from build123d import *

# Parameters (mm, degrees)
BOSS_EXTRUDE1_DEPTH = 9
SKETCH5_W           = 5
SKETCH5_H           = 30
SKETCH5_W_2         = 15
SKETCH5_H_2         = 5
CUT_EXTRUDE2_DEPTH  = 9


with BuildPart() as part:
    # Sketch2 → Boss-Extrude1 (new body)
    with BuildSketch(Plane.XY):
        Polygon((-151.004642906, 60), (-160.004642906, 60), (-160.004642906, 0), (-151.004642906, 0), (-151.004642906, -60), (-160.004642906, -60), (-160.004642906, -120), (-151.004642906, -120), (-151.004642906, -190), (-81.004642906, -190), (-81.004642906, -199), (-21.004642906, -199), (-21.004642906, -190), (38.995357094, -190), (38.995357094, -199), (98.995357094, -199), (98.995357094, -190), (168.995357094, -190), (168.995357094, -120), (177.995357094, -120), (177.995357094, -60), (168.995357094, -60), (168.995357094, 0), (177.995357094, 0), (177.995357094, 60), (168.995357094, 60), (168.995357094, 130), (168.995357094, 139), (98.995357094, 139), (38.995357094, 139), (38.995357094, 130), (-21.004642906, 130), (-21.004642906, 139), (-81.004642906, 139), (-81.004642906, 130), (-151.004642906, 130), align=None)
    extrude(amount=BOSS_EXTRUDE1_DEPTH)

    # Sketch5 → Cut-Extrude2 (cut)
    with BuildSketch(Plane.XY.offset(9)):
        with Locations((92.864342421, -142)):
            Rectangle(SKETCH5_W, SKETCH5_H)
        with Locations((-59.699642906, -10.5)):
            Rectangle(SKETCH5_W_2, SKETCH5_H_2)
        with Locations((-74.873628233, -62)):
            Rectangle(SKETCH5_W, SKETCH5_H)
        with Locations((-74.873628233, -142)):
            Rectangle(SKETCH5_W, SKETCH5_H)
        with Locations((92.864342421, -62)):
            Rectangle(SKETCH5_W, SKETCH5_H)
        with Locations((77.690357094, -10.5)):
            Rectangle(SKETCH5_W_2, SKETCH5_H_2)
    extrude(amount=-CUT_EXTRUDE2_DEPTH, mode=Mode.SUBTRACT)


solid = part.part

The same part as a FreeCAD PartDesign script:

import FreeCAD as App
import Part
import Sketcher

V = App.Vector

doc = App.newDocument("Part")
body = doc.addObject("PartDesign::Body", "Body")

# Sketch on XY plane
sketch1 = doc.addObject("Sketcher::SketchObject", "Sketch")
body.addObject(sketch1)
sketch1.AttachmentSupport = (doc.XY_Plane, [""])
sketch1.MapMode = "FlatFace"
sketch1.addGeometry([
    Part.LineSegment(V(-151, 60, 0), V(-160, 60, 0)),  # 0
    Part.LineSegment(V(-160, 60, 0), V(-160, 0, 0)),  # 1
    Part.LineSegment(V(-160, 0, 0), V(-151, 0, 0)),  # 2
    Part.LineSegment(V(-151, 0, 0), V(-151, -60, 0)),  # 3
    Part.LineSegment(V(-151, -60, 0), V(-160, -60, 0)),  # 4
    Part.LineSegment(V(-160, -60, 0), V(-160, -120, 0)),  # 5
    Part.LineSegment(V(-160, -120, 0), V(-151, -120, 0)),  # 6
    Part.LineSegment(V(-151, -120, 0), V(-151, -190, 0)),  # 7
    Part.LineSegment(V(-151, -190, 0), V(-81, -190, 0)),  # 8
    Part.LineSegment(V(-81, -190, 0), V(-81, -199, 0)),  # 9
    Part.LineSegment(V(-81, -199, 0), V(-21, -199, 0)),  # 10
    Part.LineSegment(V(-21, -199, 0), V(-21, -190, 0)),  # 11
    Part.LineSegment(V(-21, -190, 0), V(39, -190, 0)),  # 12
    Part.LineSegment(V(39, -190, 0), V(39, -199, 0)),  # 13
    Part.LineSegment(V(39, -199, 0), V(99, -199, 0)),  # 14
    Part.LineSegment(V(99, -199, 0), V(99, -190, 0)),  # 15
    Part.LineSegment(V(99, -190, 0), V(169, -190, 0)),  # 16
    Part.LineSegment(V(169, -190, 0), V(169, -120, 0)),  # 17
    Part.LineSegment(V(169, -120, 0), V(178, -120, 0)),  # 18
    Part.LineSegment(V(178, -120, 0), V(178, -60, 0)),  # 19
    Part.LineSegment(V(178, -60, 0), V(169, -60, 0)),  # 20
    Part.LineSegment(V(169, -60, 0), V(169, 0, 0)),  # 21
    Part.LineSegment(V(169, 0, 0), V(178, 0, 0)),  # 22
    Part.LineSegment(V(178, 0, 0), V(178, 60, 0)),  # 23
    Part.LineSegment(V(178, 60, 0), V(169, 60, 0)),  # 24
    Part.LineSegment(V(169, 60, 0), V(169, 139, 0)),  # 25
    Part.LineSegment(V(169, 139, 0), V(39, 139, 0)),  # 26
    Part.LineSegment(V(39, 139, 0), V(39, 130, 0)),  # 27
    Part.LineSegment(V(39, 130, 0), V(-21, 130, 0)),  # 28
    Part.LineSegment(V(-21, 130, 0), V(-21, 139, 0)),  # 29
    Part.LineSegment(V(-21, 139, 0), V(-81, 139, 0)),  # 30
    Part.LineSegment(V(-81, 139, 0), V(-81, 130, 0)),  # 31
    Part.LineSegment(V(-81, 130, 0), V(-151, 130, 0)),  # 32
    Part.LineSegment(V(-151, 130, 0), V(-151, 60, 0)),  # 33
], False)
sketch1.addConstraint([
    Sketcher.Constraint("Coincident", 0, 2, 1, 1),
    Sketcher.Constraint("Coincident", 1, 2, 2, 1),
    Sketcher.Constraint("Coincident", 2, 2, 3, 1),
    Sketcher.Constraint("Coincident", 3, 2, 4, 1),
    Sketcher.Constraint("Coincident", 4, 2, 5, 1),
    Sketcher.Constraint("Coincident", 5, 2, 6, 1),
    Sketcher.Constraint("Coincident", 6, 2, 7, 1),
    Sketcher.Constraint("Coincident", 7, 2, 8, 1),
    Sketcher.Constraint("Coincident", 8, 2, 9, 1),
    Sketcher.Constraint("Coincident", 9, 2, 10, 1),
    Sketcher.Constraint("Coincident", 10, 2, 11, 1),
    Sketcher.Constraint("Coincident", 11, 2, 12, 1),
    Sketcher.Constraint("Coincident", 12, 2, 13, 1),
    Sketcher.Constraint("Coincident", 13, 2, 14, 1),
    Sketcher.Constraint("Coincident", 14, 2, 15, 1),
    Sketcher.Constraint("Coincident", 15, 2, 16, 1),
    Sketcher.Constraint("Coincident", 16, 2, 17, 1),
    Sketcher.Constraint("Coincident", 17, 2, 18, 1),
    Sketcher.Constraint("Coincident", 18, 2, 19, 1),
    Sketcher.Constraint("Coincident", 19, 2, 20, 1),
    Sketcher.Constraint("Coincident", 20, 2, 21, 1),
    Sketcher.Constraint("Coincident", 21, 2, 22, 1),
    Sketcher.Constraint("Coincident", 22, 2, 23, 1),
    Sketcher.Constraint("Coincident", 23, 2, 24, 1),
    Sketcher.Constraint("Coincident", 24, 2, 25, 1),
    Sketcher.Constraint("Coincident", 25, 2, 26, 1),
    Sketcher.Constraint("Coincident", 26, 2, 27, 1),
    Sketcher.Constraint("Coincident", 27, 2, 28, 1),
    Sketcher.Constraint("Coincident", 28, 2, 29, 1),
    Sketcher.Constraint("Coincident", 29, 2, 30, 1),
    Sketcher.Constraint("Coincident", 30, 2, 31, 1),
    Sketcher.Constraint("Coincident", 31, 2, 32, 1),
    Sketcher.Constraint("Coincident", 32, 2, 33, 1),
    Sketcher.Constraint("Coincident", 33, 2, 0, 1),
    Sketcher.Constraint("Horizontal", 0),
    Sketcher.Constraint("Vertical", 1),
    Sketcher.Constraint("Horizontal", 2),
    Sketcher.Constraint("Vertical", 3),
    Sketcher.Constraint("Horizontal", 4),
    Sketcher.Constraint("Vertical", 5),
    Sketcher.Constraint("Horizontal", 6),
    Sketcher.Constraint("Vertical", 7),
    Sketcher.Constraint("Horizontal", 8),
    Sketcher.Constraint("Vertical", 9),
    Sketcher.Constraint("Horizontal", 10),
    Sketcher.Constraint("Vertical", 11),
    Sketcher.Constraint("Horizontal", 12),
    Sketcher.Constraint("Vertical", 13),
    Sketcher.Constraint("Horizontal", 14),
    Sketcher.Constraint("Vertical", 15),
    Sketcher.Constraint("Horizontal", 16),
    Sketcher.Constraint("Vertical", 17),
    Sketcher.Constraint("Horizontal", 18),
    Sketcher.Constraint("Vertical", 19),
    Sketcher.Constraint("Horizontal", 20),
    Sketcher.Constraint("Vertical", 21),
    Sketcher.Constraint("Horizontal", 22),
    Sketcher.Constraint("Vertical", 23),
    Sketcher.Constraint("Horizontal", 24),
    Sketcher.Constraint("Vertical", 25),
    Sketcher.Constraint("Horizontal", 26),
    Sketcher.Constraint("Vertical", 27),
    Sketcher.Constraint("Horizontal", 28),
    Sketcher.Constraint("Vertical", 29),
    Sketcher.Constraint("Horizontal", 30),
    Sketcher.Constraint("Vertical", 31),
    Sketcher.Constraint("Horizontal", 32),
    Sketcher.Constraint("Vertical", 33),
    Sketcher.Constraint("Symmetric", 0, 2, 4, 2, -1),
    Sketcher.Constraint("Symmetric", 19, 2, 23, 2, -1),
    Sketcher.Constraint("PointOnObject", 1, 2, -1),
    Sketcher.Constraint("PointOnObject", 21, 2, -1),
    Sketcher.Constraint("Horizontal", 8, 2, 11, 2),
    Sketcher.Constraint("Horizontal", 10, 2, 13, 2),
    Sketcher.Constraint("Horizontal", 12, 2, 15, 2),
    Sketcher.Constraint("Horizontal", 6, 2, 17, 2),
    Sketcher.Constraint("Horizontal", 4, 2, 19, 2),
    Sketcher.Constraint("Horizontal", 26, 2, 29, 2),
    Sketcher.Constraint("Horizontal", 28, 2, 31, 2),
    Sketcher.Constraint("Vertical", 3, 2, 6, 2),
    Sketcher.Constraint("Vertical", 17, 2, 20, 2),
    Sketcher.Constraint("Vertical", 21, 2, 24, 2),
    Sketcher.Constraint("Vertical", 13, 2, 26, 2),
    Sketcher.Constraint("Vertical", 11, 2, 28, 2),
    Sketcher.Constraint("Vertical", 9, 2, 30, 2),
    Sketcher.Constraint("Vertical", 7, 2, 32, 2),
    Sketcher.Constraint("Equal", 10, 12),
    Sketcher.Constraint("Equal", 12, 14),
    Sketcher.Constraint("Equal", 8, 16),
    Sketcher.Constraint("Equal", 6, 18),
    Sketcher.Constraint("Equal", 30, 1),
    Sketcher.Constraint("Equal", 3, 5),
    Sketcher.Constraint("Equal", 32, 7),
    Sketcher.Constraint("Equal", 24, 9),
    Sketcher.Constraint("Equal", 15, 27),
    Sketcher.Constraint("Equal", 17, 33),
    Sketcher.Constraint("DistanceX", 0, 2, 0, 1, 9.0),
    Sketcher.Constraint("DistanceX", 8, 1, 8, 2, 70.0),
    Sketcher.Constraint("DistanceX", 10, 1, 10, 2, 60.0),
    Sketcher.Constraint("DistanceX", 0, 2, -1, 1, 160.004643),
])
pad1 = doc.addObject("PartDesign::Pad", "Pad")
body.addObject(pad1)
pad1.Profile = sketch1
pad1.Length = 9

# Sketch on XY plane
sketch2 = doc.addObject("Sketcher::SketchObject", "Sketch001")
body.addObject(sketch2)
sketch2.AttachmentSupport = (doc.XY_Plane, [""])
sketch2.MapMode = "FlatFace"
sketch2.AttachmentOffset = App.Placement(V(0, 0, 9), App.Rotation())
sketch2.addGeometry([
    Part.LineSegment(V(90, -127, 0), V(90, -157, 0)),  # 0
    Part.LineSegment(V(90, -157, 0), V(95, -157, 0)),  # 1
    Part.LineSegment(V(95, -157, 0), V(95, -127, 0)),  # 2
    Part.LineSegment(V(95, -127, 0), V(90, -127, 0)),  # 3
    Part.LineSegment(V(-67, -8, 0), V(-67, -13, 0)),  # 4
    Part.LineSegment(V(-67, -13, 0), V(-52, -13, 0)),  # 5
    Part.LineSegment(V(-52, -13, 0), V(-52, -8, 0)),  # 6
    Part.LineSegment(V(-52, -8, 0), V(-67, -8, 0)),  # 7
    Part.LineSegment(V(-77, -47, 0), V(-77, -77, 0)),  # 8
    Part.LineSegment(V(-77, -77, 0), V(-72, -77, 0)),  # 9
    Part.LineSegment(V(-72, -77, 0), V(-72, -47, 0)),  # 10
    Part.LineSegment(V(-72, -47, 0), V(-77, -47, 0)),  # 11
    Part.LineSegment(V(-77, -127, 0), V(-77, -157, 0)),  # 12
    Part.LineSegment(V(-77, -157, 0), V(-72, -157, 0)),  # 13
    Part.LineSegment(V(-72, -157, 0), V(-72, -127, 0)),  # 14
    Part.LineSegment(V(-72, -127, 0), V(-77, -127, 0)),  # 15
    Part.LineSegment(V(90, -47, 0), V(90, -77, 0)),  # 16
    Part.LineSegment(V(90, -77, 0), V(95, -77, 0)),  # 17
    Part.LineSegment(V(95, -77, 0), V(95, -47, 0)),  # 18
    Part.LineSegment(V(95, -47, 0), V(90, -47, 0)),  # 19
    Part.LineSegment(V(70, -8, 0), V(70, -13, 0)),  # 20
    Part.LineSegment(V(70, -13, 0), V(85, -13, 0)),  # 21
    Part.LineSegment(V(85, -13, 0), V(85, -8, 0)),  # 22
    Part.LineSegment(V(85, -8, 0), V(70, -8, 0)),  # 23
], False)
sketch2.addConstraint([
    Sketcher.Constraint("Coincident", 0, 2, 1, 1),
    Sketcher.Constraint("Coincident", 1, 2, 2, 1),
    Sketcher.Constraint("Coincident", 2, 2, 3, 1),
    Sketcher.Constraint("Coincident", 3, 2, 0, 1),
    Sketcher.Constraint("Coincident", 4, 2, 5, 1),
    Sketcher.Constraint("Coincident", 5, 2, 6, 1),
    Sketcher.Constraint("Coincident", 6, 2, 7, 1),
    Sketcher.Constraint("Coincident", 7, 2, 4, 1),
    Sketcher.Constraint("Coincident", 8, 2, 9, 1),
    Sketcher.Constraint("Coincident", 9, 2, 10, 1),
    Sketcher.Constraint("Coincident", 10, 2, 11, 1),
    Sketcher.Constraint("Coincident", 11, 2, 8, 1),
    Sketcher.Constraint("Coincident", 12, 2, 13, 1),
    Sketcher.Constraint("Coincident", 13, 2, 14, 1),
    Sketcher.Constraint("Coincident", 14, 2, 15, 1),
    Sketcher.Constraint("Coincident", 15, 2, 12, 1),
    Sketcher.Constraint("Coincident", 16, 2, 17, 1),
    Sketcher.Constraint("Coincident", 17, 2, 18, 1),
    Sketcher.Constraint("Coincident", 18, 2, 19, 1),
    Sketcher.Constraint("Coincident", 19, 2, 16, 1),
    Sketcher.Constraint("Coincident", 20, 2, 21, 1),
    Sketcher.Constraint("Coincident", 21, 2, 22, 1),
    Sketcher.Constraint("Coincident", 22, 2, 23, 1),
    Sketcher.Constraint("Coincident", 23, 2, 20, 1),
    Sketcher.Constraint("Vertical", 0),
    Sketcher.Constraint("Horizontal", 1),
    Sketcher.Constraint("Vertical", 2),
    Sketcher.Constraint("Horizontal", 3),
    Sketcher.Constraint("Vertical", 4),
    Sketcher.Constraint("Horizontal", 5),
    Sketcher.Constraint("Vertical", 6),
    Sketcher.Constraint("Horizontal", 7),
    Sketcher.Constraint("Vertical", 8),
    Sketcher.Constraint("Horizontal", 9),
    Sketcher.Constraint("Vertical", 10),
    Sketcher.Constraint("Horizontal", 11),
    Sketcher.Constraint("Vertical", 12),
    Sketcher.Constraint("Horizontal", 13),
    Sketcher.Constraint("Vertical", 14),
    Sketcher.Constraint("Horizontal", 15),
    Sketcher.Constraint("Vertical", 16),
    Sketcher.Constraint("Horizontal", 17),
    Sketcher.Constraint("Vertical", 18),
    Sketcher.Constraint("Horizontal", 19),
    Sketcher.Constraint("Vertical", 20),
    Sketcher.Constraint("Horizontal", 21),
    Sketcher.Constraint("Vertical", 22),
    Sketcher.Constraint("Horizontal", 23),
    Sketcher.Constraint("Horizontal", 1, 2, 12, 2),
    Sketcher.Constraint("Horizontal", 3, 2, 14, 2),
    Sketcher.Constraint("Horizontal", 9, 2, 16, 2),
    Sketcher.Constraint("Horizontal", 11, 2, 18, 2),
    Sketcher.Constraint("Horizontal", 5, 2, 20, 2),
    Sketcher.Constraint("Horizontal", 7, 2, 22, 2),
    Sketcher.Constraint("Vertical", 11, 2, 12, 2),
    Sketcher.Constraint("Vertical", 10, 2, 13, 2),
    Sketcher.Constraint("Vertical", 3, 2, 16, 2),
    Sketcher.Constraint("Vertical", 2, 2, 17, 2),
    Sketcher.Constraint("Equal", 3, 9),
    Sketcher.Constraint("Equal", 7, 21),
    Sketcher.Constraint("Equal", 19, 4),
    Sketcher.Constraint("Equal", 2, 8),
    Sketcher.Constraint("DistanceX", 1, 1, 1, 2, 5.0),
    Sketcher.Constraint("DistanceX", 5, 1, 5, 2, 15.0),
    Sketcher.Constraint("DistanceY", 0, 2, 0, 1, 30.0),
    Sketcher.Constraint("DistanceY", 0, 2, -1, 1, 157.0),
    Sketcher.Constraint("DistanceY", 4, 2, -1, 1, 13.0),
    Sketcher.Constraint("DistanceY", 8, 2, -1, 1, 77.0),
    Sketcher.Constraint("DistanceX", 8, 2, -1, 1, 77.373628),
    Sketcher.Constraint("DistanceX", 8, 2, 3, 2, 167.737971),
    Sketcher.Constraint("DistanceX", 4, 2, -1, 1, 67.199643),
    Sketcher.Constraint("DistanceX", -1, 1, 20, 2, 70.190357),
])
pocket1 = doc.addObject("PartDesign::Pocket", "Pocket")
body.addObject(pocket1)
pocket1.Profile = sketch2
pocket1.Length = 9

doc.recompute()
